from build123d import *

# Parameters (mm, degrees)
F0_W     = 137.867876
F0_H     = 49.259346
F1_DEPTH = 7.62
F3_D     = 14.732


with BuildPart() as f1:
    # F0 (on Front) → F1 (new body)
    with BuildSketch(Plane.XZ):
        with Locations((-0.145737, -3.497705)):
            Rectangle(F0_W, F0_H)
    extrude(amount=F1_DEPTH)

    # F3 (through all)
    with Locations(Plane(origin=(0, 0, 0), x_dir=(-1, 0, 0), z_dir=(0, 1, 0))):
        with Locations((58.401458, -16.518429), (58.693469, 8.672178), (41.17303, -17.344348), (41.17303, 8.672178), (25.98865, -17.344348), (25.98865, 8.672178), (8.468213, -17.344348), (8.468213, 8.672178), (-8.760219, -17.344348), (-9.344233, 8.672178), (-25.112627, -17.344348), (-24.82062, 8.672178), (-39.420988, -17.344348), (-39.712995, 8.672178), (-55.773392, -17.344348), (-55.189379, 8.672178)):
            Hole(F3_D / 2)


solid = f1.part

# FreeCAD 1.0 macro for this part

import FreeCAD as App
import Part
import Sketcher

V = App.Vector
Q = App.Units.Quantity


def add_polygon(sketch, points):
    """Adds a closed chain of lines whose ends are joined by coincident constraints."""
    first, n = sketch.GeometryCount, len(points)
    for a, b in zip(points, points[1:] + points[:1]):
        sketch.addGeometry(Part.LineSegment(App.Vector(*a, 0), App.Vector(*b, 0)), False)
    for i in range(n):
        sketch.addConstraint(Sketcher.Constraint("Coincident", first + i, 2, first + (i + 1) % n, 1))

doc = App.newDocument("Part")
body = doc.addObject("PartDesign::Body", "Body")

# Sketch on XZ plane
sketch1 = doc.addObject("Sketcher::SketchObject", "Sketch")
body.addObject(sketch1)
sketch1.AttachmentSupport = (doc.XZ_Plane, [""])
sketch1.MapMode = "FlatFace"
add_polygon(sketch1, [(-69, 21), (-69, -28), (69, -28), (69, 21)])  # lines 0-3
sketch1.addConstraint(Sketcher.Constraint("Vertical", 0))
sketch1.addConstraint(Sketcher.Constraint("Horizontal", 1))
sketch1.addConstraint(Sketcher.Constraint("Vertical", 2))
sketch1.addConstraint(Sketcher.Constraint("Horizontal", 3))
sketch1.addConstraint(Sketcher.Constraint("DistanceX", -1, 1, 1, 2, 68.788201))
sketch1.addConstraint(Sketcher.Constraint("DistanceX", 1, 1, 1, 2, 137.867876))
sketch1.addConstraint(Sketcher.Constraint("DistanceY", 0, 2, 0, 1, 49.259346))
sketch1.addConstraint(Sketcher.Constraint("DistanceY", 0, 2, -1, 1, 28.127378))
pad1 = doc.addObject("PartDesign::Pad", "Pad")
body.addObject(pad1)
pad1.Profile = sketch1
pad1.Length = Q("0.3 in")

# Sketch on XZ plane
sketch2 = doc.addObject("Sketcher::SketchObject", "Sketch001")
body.addObject(sketch2)
sketch2.AttachmentSupport = (doc.XZ_Plane, [""])
sketch2.MapMode = "FlatFace"
sketch2.addGeometry(Part.Circle(V(-58, -17, 0), V(0, 0, 1), 7), False)
sketch2.addGeometry(Part.Circle(V(-59, 9, 0), V(0, 0, 1), 7), False)
sketch2.addGeometry(Part.Circle(V(-41, -17, 0), V(0, 0, 1), 7), False)
sketch2.addGeometry(Part.Circle(V(-41, 9, 0), V(0, 0, 1), 7), False)
sketch2.addGeometry(Part.Circle(V(-26, -17, 0), V(0, 0, 1), 7), False)
sketch2.addGeometry(Part.Circle(V(-26, 9, 0), V(0, 0, 1), 7), False)
sketch2.addGeometry(Part.Circle(V(-8, -17, 0), V(0, 0, 1), 7), False)
sketch2.addGeometry(Part.Circle(V(-8, 9, 0), V(0, 0, 1), 7), False)
sketch2.addGeometry(Part.Circle(V(9, -17, 0), V(0, 0, 1), 7), False)
sketch2.addGeometry(Part.Circle(V(9, 9, 0), V(0, 0, 1), 7), False)
sketch2.addGeometry(Part.Circle(V(25, -17, 0), V(0, 0, 1), 7), False)
sketch2.addGeometry(Part.Circle(V(25, 9, 0), V(0, 0, 1), 7), False)
sketch2.addGeometry(Part.Circle(V(39, -17, 0), V(0, 0, 1), 7), False)
sketch2.addGeometry(Part.Circle(V(40, 9, 0), V(0, 0, 1), 7), False)
sketch2.addGeometry(Part.Circle(V(56, -17, 0), V(0, 0, 1), 7), False)
sketch2.addGeometry(Part.Circle(V(55, 9, 0), V(0, 0, 1), 7), False)
sketch2.addConstraint(Sketcher.Constraint("Equal", 0, 1))
sketch2.addConstraint(Sketcher.Constraint("Equal", 1, 2))
sketch2.addConstraint(Sketcher.Constraint("Equal", 2, 3))
sketch2.addConstraint(Sketcher.Constraint("Equal", 3, 4))
sketch2.addConstraint(Sketcher.Constraint("Equal", 4, 5))
sketch2.addConstraint(Sketcher.Constraint("Equal", 5, 6))
sketch2.addConstraint(Sketcher.Constraint("Equal", 6, 7))
sketch2.addConstraint(Sketcher.Constraint("Equal", 7, 8))
sketch2.addConstraint(Sketcher.Constraint("Equal", 8, 9))
sketch2.addConstraint(Sketcher.Constraint("Equal", 9, 10))
sketch2.addConstraint(Sketcher.Constraint("Equal", 10, 11))
sketch2.addConstraint(Sketcher.Constraint("Equal", 11, 12))
sketch2.addConstraint(Sketcher.Constraint("Equal", 12, 13))
sketch2.addConstraint(Sketcher.Constraint("Equal", 13, 14))
sketch2.addConstraint(Sketcher.Constraint("Equal", 14, 15))
sketch2.addConstraint(Sketcher.Constraint("Horizontal", 1, 3, 3, 3))
sketch2.addConstraint(Sketcher.Constraint("Horizontal", 2, 3, 4, 3))
sketch2.addConstraint(Sketcher.Constraint("Horizontal", 3, 3, 5, 3))
sketch2.addConstraint(Sketcher.Constraint("Horizontal", 4, 3, 6, 3))
sketch2.addConstraint(Sketcher.Constraint("Horizontal", 5, 3, 7, 3))
sketch2.addConstraint(Sketcher.Constraint("Horizontal", 6, 3, 8, 3))
sketch2.addConstraint(Sketcher.Constraint("Horizontal", 7, 3, 9, 3))
sketch2.addConstraint(Sketcher.Constraint("Horizontal", 8, 3, 10, 3))
sketch2.addConstraint(Sketcher.Constraint("Horizontal", 9, 3, 11, 3))
sketch2.addConstraint(Sketcher.Constraint("Horizontal", 10, 3, 12, 3))
sketch2.addConstraint(Sketcher.Constraint("Horizontal", 11, 3, 13, 3))
sketch2.addConstraint(Sketcher.Constraint("Horizontal", 12, 3, 14, 3))
sketch2.addConstraint(Sketcher.Constraint("Horizontal", 13, 3, 15, 3))
sketch2.addConstraint(Sketcher.Constraint("Vertical", 2, 3, 3, 3))
sketch2.addConstraint(Sketcher.Constraint("Vertical", 4, 3, 5, 3))
sketch2.addConstraint(Sketcher.Constraint("Vertical", 6, 3, 7, 3))
sketch2.addConstraint(Sketcher.Constraint("Diameter", 0, Q("0.58 in")))
sketch2.addConstraint(Sketcher.Constraint("DistanceX", 8, 3, 11, 3, 16.060401))
sketch2.addConstraint(Sketcher.Constraint("DistanceX", 6, 3, 12, 3, 47.889201))
sketch2.addConstraint(Sketcher.Constraint("DistanceY", 0, 3, -1, 1, 16.518429))
sketch2.addConstraint(Sketcher.Constraint("DistanceX", 1, 3, -1, 1, 58.693469))
sketch2.addConstraint(Sketcher.Constraint("DistanceX", 2, 3, -1, 1, 41.17303))
sketch2.addConstraint(Sketcher.Constraint("DistanceY", 2, 3, -1, 1, 17.344348))
sketch2.addConstraint(Sketcher.Constraint("DistanceX", 4, 3, -1, 1, 25.98865))
sketch2.addConstraint(Sketcher.Constraint("DistanceX", -1, 1, 8, 3, 8.760219))
sketch2.addConstraint(Sketcher.Constraint("DistanceX", -1, 1, 15, 3, 55.189379))
sketch2.addConstraint(Sketcher.Constraint("DistanceX", 1, 3, 0, 3, 0.292011))
sketch2.addConstraint(Sketcher.Constraint("DistanceX", 6, 3, 8, 3, 17.228432))
sketch2.addConstraint(Sketcher.Constraint("DistanceX", 8, 3, 10, 3, 16.352408))
sketch2.addConstraint(Sketcher.Constraint("DistanceX", 9, 3, 13, 3, 30.368762))
sketch2.addConstraint(Sketcher.Constraint("DistanceX", 11, 3, 14, 3, 30.952772))
sketch2.addConstraint(Sketcher.Constraint("DistanceY", -1, 1, 1, 3, 8.672178))
sketch2.addConstraint(Sketcher.Constraint("DistanceX", -1, 1, 9, 3, 9.344233))
doc.recompute()
hole = doc.addObject("PartDesign::Hole", "Hole")
body.addObject(hole)
hole.Profile = sketch2
hole.ThreadType = "None"
hole.Diameter = Q("0.58 in")
hole.DepthType = "ThroughAll"
hole.Reversed = True

doc.recompute()
